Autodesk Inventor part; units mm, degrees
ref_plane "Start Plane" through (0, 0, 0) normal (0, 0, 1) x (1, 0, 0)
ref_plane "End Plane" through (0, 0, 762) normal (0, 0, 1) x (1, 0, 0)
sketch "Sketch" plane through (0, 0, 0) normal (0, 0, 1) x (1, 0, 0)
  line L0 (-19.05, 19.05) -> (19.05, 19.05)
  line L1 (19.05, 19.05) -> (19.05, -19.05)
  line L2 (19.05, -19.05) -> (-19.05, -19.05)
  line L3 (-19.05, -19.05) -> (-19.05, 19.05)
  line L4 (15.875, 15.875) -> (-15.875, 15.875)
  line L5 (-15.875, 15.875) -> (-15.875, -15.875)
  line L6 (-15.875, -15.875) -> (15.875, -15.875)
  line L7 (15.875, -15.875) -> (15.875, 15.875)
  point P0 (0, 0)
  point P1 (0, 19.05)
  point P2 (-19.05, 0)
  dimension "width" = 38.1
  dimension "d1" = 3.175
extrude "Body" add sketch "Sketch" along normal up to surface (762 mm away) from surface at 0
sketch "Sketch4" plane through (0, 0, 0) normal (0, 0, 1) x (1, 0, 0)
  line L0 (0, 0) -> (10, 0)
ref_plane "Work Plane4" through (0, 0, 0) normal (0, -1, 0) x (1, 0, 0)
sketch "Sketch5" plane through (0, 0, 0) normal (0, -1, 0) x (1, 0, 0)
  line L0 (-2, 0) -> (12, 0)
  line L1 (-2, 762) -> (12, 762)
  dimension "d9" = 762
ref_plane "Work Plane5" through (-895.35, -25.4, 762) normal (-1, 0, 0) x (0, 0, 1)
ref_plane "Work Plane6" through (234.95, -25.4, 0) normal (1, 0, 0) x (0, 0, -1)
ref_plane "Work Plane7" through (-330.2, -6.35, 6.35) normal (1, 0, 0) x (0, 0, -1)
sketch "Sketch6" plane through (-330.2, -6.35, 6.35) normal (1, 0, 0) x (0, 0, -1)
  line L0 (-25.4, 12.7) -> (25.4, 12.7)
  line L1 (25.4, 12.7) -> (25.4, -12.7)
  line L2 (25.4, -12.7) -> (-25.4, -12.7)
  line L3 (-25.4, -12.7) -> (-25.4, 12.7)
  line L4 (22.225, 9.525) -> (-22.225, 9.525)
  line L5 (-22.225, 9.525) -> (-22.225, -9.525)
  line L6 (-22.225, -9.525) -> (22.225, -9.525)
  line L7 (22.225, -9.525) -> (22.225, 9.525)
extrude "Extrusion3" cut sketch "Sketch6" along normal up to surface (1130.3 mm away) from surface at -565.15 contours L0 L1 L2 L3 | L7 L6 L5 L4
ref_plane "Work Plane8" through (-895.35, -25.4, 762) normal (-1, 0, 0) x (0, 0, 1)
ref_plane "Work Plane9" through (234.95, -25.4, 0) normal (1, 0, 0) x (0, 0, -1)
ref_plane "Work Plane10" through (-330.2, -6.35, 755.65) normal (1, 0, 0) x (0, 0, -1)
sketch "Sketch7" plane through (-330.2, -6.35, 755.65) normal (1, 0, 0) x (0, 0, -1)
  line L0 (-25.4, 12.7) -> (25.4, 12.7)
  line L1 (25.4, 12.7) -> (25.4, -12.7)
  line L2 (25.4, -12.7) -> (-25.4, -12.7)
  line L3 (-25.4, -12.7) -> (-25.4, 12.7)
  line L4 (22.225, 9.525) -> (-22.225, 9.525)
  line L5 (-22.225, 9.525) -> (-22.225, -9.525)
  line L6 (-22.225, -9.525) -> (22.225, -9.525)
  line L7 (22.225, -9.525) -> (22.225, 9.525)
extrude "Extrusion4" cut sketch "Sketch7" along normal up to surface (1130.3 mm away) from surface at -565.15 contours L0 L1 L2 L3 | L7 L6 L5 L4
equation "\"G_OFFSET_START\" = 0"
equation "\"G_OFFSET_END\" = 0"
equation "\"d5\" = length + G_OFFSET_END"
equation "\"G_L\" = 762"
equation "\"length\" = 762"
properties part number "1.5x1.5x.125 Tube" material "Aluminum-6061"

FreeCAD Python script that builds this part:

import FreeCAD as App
import Part
import Sketcher

V = App.Vector
Q = App.Units.Quantity

doc = App.newDocument("Part")
body = doc.addObject("PartDesign::Body", "Body")

# Sketch on XY plane
sketch1 = doc.addObject("Sketcher::SketchObject", "Sketch")
body.addObject(sketch1)
sketch1.AttachmentSupport = (doc.XY_Plane, [""])
sketch1.MapMode = "FlatFace"
sketch1.addGeometry(Part.LineSegment(V(19, 19, 0), V(-19, 19, 0)), False)
sketch1.addGeometry(Part.LineSegment(V(-19, 19, 0), V(-19, -19, 0)), False)
sketch1.addGeometry(Part.LineSegment(V(-19, -19, 0), V(19, -19, 0)), False)
sketch1.addGeometry(Part.LineSegment(V(19, -19, 0), V(19, 19, 0)), False)
sketch1.addGeometry(Part.LineSegment(V(-16, 16, 0), V(16, 16, 0)), False)
sketch1.addGeometry(Part.LineSegment(V(16, 16, 0), V(16, -16, 0)), False)
sketch1.addGeometry(Part.LineSegment(V(16, -16, 0), V(-16, -16, 0)), False)
sketch1.addGeometry(Part.LineSegment(V(-16, -16, 0), V(-16, 16, 0)), False)
sketch1.addConstraint(Sketcher.Constraint("Coincident", 0, 2, 1, 1))
sketch1.addConstraint(Sketcher.Constraint("Coincident", 1, 2, 2, 1))
sketch1.addConstraint(Sketcher.Constraint("Coincident", 2, 2, 3, 1))
sketch1.addConstraint(Sketcher.Constraint("Coincident", 3, 2, 0, 1))
sketch1.addConstraint(Sketcher.Constraint("Coincident", 4, 2, 5, 1))
sketch1.addConstraint(Sketcher.Constraint("Coincident", 5, 2, 6, 1))
sketch1.addConstraint(Sketcher.Constraint("Coincident", 6, 2, 7, 1))
sketch1.addConstraint(Sketcher.Constraint("Coincident", 7, 2, 4, 1))
sketch1.addConstraint(Sketcher.Constraint("Horizontal", 0))
sketch1.addConstraint(Sketcher.Constraint("Vertical", 1))
sketch1.addConstraint(Sketcher.Constraint("Horizontal", 2))
sketch1.addConstraint(Sketcher.Constraint("Vertical", 3))
sketch1.addConstraint(Sketcher.Constraint("Horizontal", 4))
sketch1.addConstraint(Sketcher.Constraint("Vertical", 5))
sketch1.addConstraint(Sketcher.Constraint("Horizontal", 6))
sketch1.addConstraint(Sketcher.Constraint("Vertical", 7))
sketch1.addConstraint(Sketcher.Constraint("Symmetric", 0, 2, 2, 2, -1, 1))
sketch1.addConstraint(Sketcher.Constraint("Symmetric", 4, 2, 6, 2, -1, 1))
sketch1.addConstraint(Sketcher.Constraint("Equal", 2, 1))
sketch1.addConstraint(Sketcher.Constraint("Equal", 6, 5))
sketch1.addConstraint(Sketcher.Constraint("DistanceX", 0, 2, 0, 1, Q("1.5 in")))
sketch1.addConstraint(Sketcher.Constraint("DistanceX", 4, 2, 3, 2, Q("0.125 in")))
pad1 = doc.addObject("PartDesign::Pad", "Pad")
body.addObject(pad1)
pad1.Profile = sketch1
pad1.Length = Q("30 in")

# Sketch on YZ plane
sketch2 = doc.addObject("Sketcher::SketchObject", "Sketch001")
body.addObject(sketch2)
sketch2.AttachmentSupport = (doc.YZ_Plane, [""])
sketch2.MapMode = "FlatFace"
sketch2.AttachmentOffset = App.Placement(V(0, 0, -35.25 * 25.4), App.Rotation())
sketch2.addGeometry(Part.LineSegment(V(6, -19, 0), V(6, 32, 0)), False)
sketch2.addGeometry(Part.LineSegment(V(6, 32, 0), V(-19, 32, 0)), False)
sketch2.addGeometry(Part.LineSegment(V(-19, 32, 0), V(-19, -19, 0)), False)
sketch2.addGeometry(Part.LineSegment(V(-19, -19, 0), V(6, -19, 0)), False)
sketch2.addConstraint(Sketcher.Constraint("Coincident", 0, 2, 1, 1))
sketch2.addConstraint(Sketcher.Constraint("Coincident", 1, 2, 2, 1))
sketch2.addConstraint(Sketcher.Constraint("Coincident", 2, 2, 3, 1))
sketch2.addConstraint(Sketcher.Constraint("Coincident", 3, 2, 0, 1))
sketch2.addConstraint(Sketcher.Constraint("Vertical", 0))
sketch2.addConstraint(Sketcher.Constraint("Horizontal", 1))
sketch2.addConstraint(Sketcher.Constraint("Vertical", 2))
sketch2.addConstraint(Sketcher.Constraint("Horizontal", 3))
sketch2.addConstraint(Sketcher.Constraint("DistanceX", 1, 2, 1, 1, Q("1 in")))
sketch2.addConstraint(Sketcher.Constraint("DistanceY", 0, 1, 0, 2, Q("2 in")))
sketch2.addConstraint(Sketcher.Constraint("DistanceX", -1, 1, 0, 2, Q("0.25 in")))
sketch2.addConstraint(Sketcher.Constraint("DistanceY", -1, 1, 0, 2, Q("1.25 in")))
pocket1 = doc.addObject("PartDesign::Pocket", "Pocket")
body.addObject(pocket1)
pocket1.Profile = sketch2
pocket1.Length = Q("44.5 in")
pocket1.Reversed = True

# Sketch on YZ plane
sketch3 = doc.addObject("Sketcher::SketchObject", "Sketch002")
body.addObject(sketch3)
sketch3.AttachmentSupport = (doc.YZ_Plane, [""])
sketch3.MapMode = "FlatFace"
sketch3.AttachmentOffset = App.Placement(V(0, 0, -35.25 * 25.4), App.Rotation())
sketch3.addGeometry(Part.LineSegment(V(6, 730, 0), V(6, 781, 0)), False)
sketch3.addGeometry(Part.LineSegment(V(6, 781, 0), V(-19, 781, 0)), False)
sketch3.addGeometry(Part.LineSegment(V(-19, 781, 0), V(-19, 730, 0)), False)
sketch3.addGeometry(Part.LineSegment(V(-19, 730, 0), V(6, 730, 0)), False)
sketch3.addConstraint(Sketcher.Constraint("Coincident", 0, 2, 1, 1))
sketch3.addConstraint(Sketcher.Constraint("Coincident", 1, 2, 2, 1))
sketch3.addConstraint(Sketcher.Constraint("Coincident", 2, 2, 3, 1))
sketch3.addConstraint(Sketcher.Constraint("Coincident", 3, 2, 0, 1))
sketch3.addConstraint(Sketcher.Constraint("Vertical", 0))
sketch3.addConstraint(Sketcher.Constraint("Horizontal", 1))
sketch3.addConstraint(Sketcher.Constraint("Vertical", 2))
sketch3.addConstraint(Sketcher.Constraint("Horizontal", 3))
sketch3.addConstraint(Sketcher.Constraint("DistanceX", 1, 2, 1, 1, Q("1 in")))
sketch3.addConstraint(Sketcher.Constraint("DistanceY", 0, 1, 0, 2, Q("2 in")))
sketch3.addConstraint(Sketcher.Constraint("DistanceX", -1, 1, 0, 2, Q("0.25 in")))
sketch3.addConstraint(Sketcher.Constraint("DistanceY", -1, 1, 0, 2, Q("30.75 in")))
pocket2 = doc.addObject("PartDesign::Pocket", "Pocket001")
body.addObject(pocket2)
pocket2.Profile = sketch3
pocket2.Length = Q("44.5 in")
pocket2.Reversed = True

doc.recompute()
